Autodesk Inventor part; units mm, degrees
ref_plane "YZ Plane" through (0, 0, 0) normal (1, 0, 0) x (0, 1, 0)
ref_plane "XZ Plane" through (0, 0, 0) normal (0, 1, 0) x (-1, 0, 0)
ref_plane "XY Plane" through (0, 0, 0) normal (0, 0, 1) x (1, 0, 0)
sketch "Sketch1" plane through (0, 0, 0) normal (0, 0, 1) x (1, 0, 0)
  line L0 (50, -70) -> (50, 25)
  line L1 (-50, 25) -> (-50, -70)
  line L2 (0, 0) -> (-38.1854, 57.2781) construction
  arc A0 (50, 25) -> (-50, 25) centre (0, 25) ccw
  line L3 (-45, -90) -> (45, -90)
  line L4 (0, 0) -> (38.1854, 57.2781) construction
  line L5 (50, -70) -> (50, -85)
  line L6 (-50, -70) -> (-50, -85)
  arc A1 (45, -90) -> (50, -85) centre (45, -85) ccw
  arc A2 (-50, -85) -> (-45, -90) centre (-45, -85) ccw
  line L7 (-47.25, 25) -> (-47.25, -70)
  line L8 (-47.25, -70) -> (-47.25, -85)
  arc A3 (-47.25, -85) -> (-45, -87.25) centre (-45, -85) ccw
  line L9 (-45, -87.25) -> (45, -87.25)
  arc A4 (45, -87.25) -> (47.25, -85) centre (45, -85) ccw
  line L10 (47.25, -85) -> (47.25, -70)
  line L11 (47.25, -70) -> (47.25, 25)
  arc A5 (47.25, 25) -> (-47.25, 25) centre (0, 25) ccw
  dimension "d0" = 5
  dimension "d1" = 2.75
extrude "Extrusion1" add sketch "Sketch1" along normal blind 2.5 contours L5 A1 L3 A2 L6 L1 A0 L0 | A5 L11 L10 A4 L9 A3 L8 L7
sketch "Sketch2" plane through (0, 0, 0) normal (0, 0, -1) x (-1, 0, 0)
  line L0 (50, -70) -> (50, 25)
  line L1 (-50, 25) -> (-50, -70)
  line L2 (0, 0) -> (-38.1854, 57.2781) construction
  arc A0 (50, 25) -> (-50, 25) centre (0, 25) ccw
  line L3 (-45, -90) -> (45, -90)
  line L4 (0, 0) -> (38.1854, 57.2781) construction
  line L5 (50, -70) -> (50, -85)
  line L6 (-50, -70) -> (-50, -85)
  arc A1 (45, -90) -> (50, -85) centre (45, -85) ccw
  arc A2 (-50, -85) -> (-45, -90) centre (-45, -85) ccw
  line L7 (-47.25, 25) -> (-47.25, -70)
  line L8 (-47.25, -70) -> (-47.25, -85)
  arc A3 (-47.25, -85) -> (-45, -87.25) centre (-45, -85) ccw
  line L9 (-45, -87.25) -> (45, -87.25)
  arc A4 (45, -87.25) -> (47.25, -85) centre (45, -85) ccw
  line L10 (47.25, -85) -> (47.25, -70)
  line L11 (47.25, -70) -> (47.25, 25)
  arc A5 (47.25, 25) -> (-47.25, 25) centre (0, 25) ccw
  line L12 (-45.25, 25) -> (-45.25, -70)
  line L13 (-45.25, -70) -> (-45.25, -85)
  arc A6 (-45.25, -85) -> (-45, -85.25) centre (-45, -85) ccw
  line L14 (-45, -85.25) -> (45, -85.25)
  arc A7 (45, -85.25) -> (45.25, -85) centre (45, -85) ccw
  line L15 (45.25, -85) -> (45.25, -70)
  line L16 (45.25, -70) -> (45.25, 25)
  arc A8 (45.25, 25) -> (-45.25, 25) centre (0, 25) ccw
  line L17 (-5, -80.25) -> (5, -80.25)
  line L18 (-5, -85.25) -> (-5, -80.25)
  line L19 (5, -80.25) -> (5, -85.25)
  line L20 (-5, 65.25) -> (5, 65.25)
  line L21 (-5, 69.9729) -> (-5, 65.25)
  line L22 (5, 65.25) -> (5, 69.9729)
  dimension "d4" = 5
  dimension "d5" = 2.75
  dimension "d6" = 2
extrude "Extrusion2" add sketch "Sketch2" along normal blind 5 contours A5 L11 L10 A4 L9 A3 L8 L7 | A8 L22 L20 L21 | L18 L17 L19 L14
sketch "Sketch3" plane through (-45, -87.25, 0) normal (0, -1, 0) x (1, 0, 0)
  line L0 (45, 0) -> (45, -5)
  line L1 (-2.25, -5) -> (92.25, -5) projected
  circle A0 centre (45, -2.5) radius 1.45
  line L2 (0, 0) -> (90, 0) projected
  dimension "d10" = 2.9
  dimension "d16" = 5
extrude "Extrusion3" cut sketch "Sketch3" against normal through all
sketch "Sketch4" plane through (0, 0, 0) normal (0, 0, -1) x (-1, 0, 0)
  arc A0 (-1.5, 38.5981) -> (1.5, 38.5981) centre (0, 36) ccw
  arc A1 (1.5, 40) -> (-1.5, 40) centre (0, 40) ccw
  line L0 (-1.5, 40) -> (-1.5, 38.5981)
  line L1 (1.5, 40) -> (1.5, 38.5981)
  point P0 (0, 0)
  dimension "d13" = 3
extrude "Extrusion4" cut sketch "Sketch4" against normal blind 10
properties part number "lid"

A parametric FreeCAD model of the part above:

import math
import FreeCAD as App
import Part
import Sketcher
from FreeCAD import Vector

doc = App.newDocument("Part")
body = doc.addObject("PartDesign::Body", "Body")

# Sketch on XY plane
sketch1 = body.newObject("Sketcher::SketchObject", "Sketch")
sketch1.AttachmentSupport = (doc.getObject("XY_Plane"), [""])
sketch1.MapMode = "FlatFace"
sketch1.addGeometry([
    Part.LineSegment(Vector(50, -85, 0), Vector(50, 25, 0)),  # 0
    Part.ArcOfCircle(Part.Circle(Vector(0, 25, 0), Vector(0, 0, 1), 50), math.radians(0), math.radians(180)),  # 1
    Part.LineSegment(Vector(-50, 25, 0), Vector(-50, -85, 0)),  # 2
    Part.ArcOfCircle(Part.Circle(Vector(-45, -85, 0), Vector(0, 0, 1), 5), math.radians(180), math.radians(270)),  # 3
    Part.LineSegment(Vector(-45, -90, 0), Vector(45, -90, 0)),  # 4
    Part.ArcOfCircle(Part.Circle(Vector(45, -85, 0), Vector(0, 0, 1), 5), math.radians(-90), math.radians(0)),  # 5
], False)
sketch1.addConstraint([
    Sketcher.Constraint("Tangent", 0, 2, 1, 1),
    Sketcher.Constraint("Tangent", 1, 2, 2, 1),
    Sketcher.Constraint("Tangent", 2, 2, 3, 1),
    Sketcher.Constraint("Tangent", 3, 2, 4, 1),
    Sketcher.Constraint("Tangent", 4, 2, 5, 1),
    Sketcher.Constraint("Tangent", 5, 2, 0, 1),
    Sketcher.Constraint("Vertical", 0),
    Sketcher.Constraint("Vertical", 2),
    Sketcher.Constraint("Horizontal", 4),
    Sketcher.Constraint("Equal", 3, 5),
    Sketcher.Constraint("PointOnObject", 1, 3, -2),
    Sketcher.Constraint("Radius", 3, 5.0),
    Sketcher.Constraint("Radius", 1, 50.0),
    Sketcher.Constraint("DistanceY", 0, 1, 0, 2, 110.0),
    Sketcher.Constraint("DistanceY", -1, 1, 1, 3, 25.0),
])
pad1 = body.newObject("PartDesign::Pad", "Pad")
pad1.Profile = sketch1
pad1.Length = 2.5

# Sketch on XY plane
sketch2 = body.newObject("Sketcher::SketchObject", "Sketch001")
sketch2.AttachmentSupport = (doc.getObject("XY_Plane"), [""])
sketch2.MapMode = "FlatFace"
sketch2.addGeometry([
    Part.ArcOfCircle(Part.Circle(Vector(0, 25, 0), Vector(0, 0, 1), 47.25), math.radians(0), math.radians(180)),  # 0
    Part.LineSegment(Vector(47.25, 25, 0), Vector(47.25, -85, 0)),  # 1
    Part.ArcOfCircle(Part.Circle(Vector(45, -85, 0), Vector(0, 0, 1), 2.25), math.radians(-90), math.radians(0)),  # 2
    Part.LineSegment(Vector(45, -87.25, 0), Vector(-45, -87.25, 0)),  # 3
    Part.ArcOfCircle(Part.Circle(Vector(-45, -85, 0), Vector(0, 0, 1), 2.25), math.radians(180), math.radians(270)),  # 4
    Part.LineSegment(Vector(-47.25, -85, 0), Vector(-47.25, 25, 0)),  # 5
    Part.ArcOfCircle(Part.Circle(Vector(0, 25, 0), Vector(0, 0, 1), 45.25), math.radians(0), math.radians(83.656019)),  # 6
    Part.LineSegment(Vector(5, 69.9729, 0), Vector(5, 65.25, 0)),  # 7
    Part.LineSegment(Vector(5, 65.25, 0), Vector(-5, 65.25, 0)),  # 8
    Part.LineSegment(Vector(-5, 65.25, 0), Vector(-5, 69.9729, 0)),  # 9
    Part.ArcOfCircle(Part.Circle(Vector(0, 25, 0), Vector(0, 0, 1), 45.25), math.radians(96.343981), math.radians(180)),  # 10
    Part.LineSegment(Vector(-45.25, 25, 0), Vector(-45.25, -85, 0)),  # 11
    Part.ArcOfCircle(Part.Circle(Vector(-45, -85, 0), Vector(0, 0, 1), 0.25), math.radians(180), math.radians(270)),  # 12
    Part.LineSegment(Vector(-45, -85.25, 0), Vector(-5, -85.25, 0)),  # 13
    Part.LineSegment(Vector(-5, -85.25, 0), Vector(-5, -80.25, 0)),  # 14
    Part.LineSegment(Vector(-5, -80.25, 0), Vector(5, -80.25, 0)),  # 15
    Part.LineSegment(Vector(5, -80.25, 0), Vector(5, -85.25, 0)),  # 16
    Part.LineSegment(Vector(5, -85.25, 0), Vector(45, -85.25, 0)),  # 17
    Part.ArcOfCircle(Part.Circle(Vector(45, -85, 0), Vector(0, 0, 1), 0.25), math.radians(-90), math.radians(0)),  # 18
    Part.LineSegment(Vector(45.25, -85, 0), Vector(45.25, 25, 0)),  # 19
], False)
sketch2.addConstraint([
    Sketcher.Constraint("Tangent", 0, 1, 1, 1),
    Sketcher.Constraint("Tangent", 1, 2, 2, 2),
    Sketcher.Constraint("Tangent", 2, 1, 3, 1),
    Sketcher.Constraint("Tangent", 3, 2, 4, 2),
    Sketcher.Constraint("Tangent", 4, 1, 5, 1),
    Sketcher.Constraint("Tangent", 5, 2, 0, 2),
    Sketcher.Constraint("Coincident", 6, 2, 7, 1),
    Sketcher.Constraint("Coincident", 7, 2, 8, 1),
    Sketcher.Constraint("Coincident", 8, 2, 9, 1),
    Sketcher.Constraint("Coincident", 9, 2, 10, 1),
    Sketcher.Constraint("Tangent", 10, 2, 11, 1),
    Sketcher.Constraint("Tangent", 11, 2, 12, 1),
    Sketcher.Constraint("Tangent", 12, 2, 13, 1),
    Sketcher.Constraint("Coincident", 13, 2, 14, 1),
    Sketcher.Constraint("Coincident", 14, 2, 15, 1),
    Sketcher.Constraint("Coincident", 15, 2, 16, 1),
    Sketcher.Constraint("Coincident", 16, 2, 17, 1),
    Sketcher.Constraint("Tangent", 17, 2, 18, 1),
    Sketcher.Constraint("Tangent", 18, 2, 19, 1),
    Sketcher.Constraint("Tangent", 19, 2, 6, 1),
    Sketcher.Constraint("Vertical", 1),
    Sketcher.Constraint("Horizontal", 3),
    Sketcher.Constraint("Vertical", 5),
    Sketcher.Constraint("Vertical", 7),
    Sketcher.Constraint("Horizontal", 8),
    Sketcher.Constraint("Vertical", 9),
    Sketcher.Constraint("Vertical", 11),
    Sketcher.Constraint("Horizontal", 13),
    Sketcher.Constraint("Vertical", 14),
    Sketcher.Constraint("Horizontal", 15),
    Sketcher.Constraint("Vertical", 16),
    Sketcher.Constraint("Horizontal", 17),
    Sketcher.Constraint("Vertical", 19),
    Sketcher.Constraint("Coincident", 6, 3, 0, 3),
    Sketcher.Constraint("Coincident", 10, 3, 0, 3),
    Sketcher.Constraint("Coincident", 12, 3, 4, 3),
    Sketcher.Constraint("Coincident", 18, 3, 2, 3),
    Sketcher.Constraint("Equal", 2, 4),
    Sketcher.Constraint("Equal", 6, 10),
    Sketcher.Constraint("Symmetric", 6, 2, 9, 2, -2),
    Sketcher.Constraint("Vertical", 9, 2, 13, 2),
    Sketcher.Constraint("Vertical", 7, 2, 15, 2),
    Sketcher.Constraint("DistanceY", 14, 1, 14, 2, 5.0),
    Sketcher.Constraint("DistanceX", -1, 1, 6, 2, 5.0),
    Sketcher.Constraint("DistanceX", 5, 2, 10, 2, 2.0),
    Sketcher.Constraint("DistanceX", 3, 2, 3, 1, 90.0),
    Sketcher.Constraint("DistanceY", 1, 2, 1, 1, 110.0),
    Sketcher.Constraint("Radius", 0, 47.25),
    Sketcher.Constraint("DistanceY", -1, 1, 0, 3, 25.0),
    Sketcher.Constraint("DistanceY", 7, 2, 7, 1, 4.723),
])
pad2 = body.newObject("PartDesign::Pad", "Pad001")
pad2.Profile = sketch2
pad2.Length = 5
pad2.Reversed = True

# Sketch on XZ plane
sketch3 = body.newObject("Sketcher::SketchObject", "Sketch002")
sketch3.AttachmentSupport = (doc.getObject("XZ_Plane"), [""])
sketch3.MapMode = "FlatFace"
sketch3.AttachmentOffset = App.Placement(Vector(0, 0, 87.25), App.Rotation())
sketch3.addGeometry(Part.Circle(Vector(0, -2.5, 0), Vector(0, 0, 1), 1.45), False)
sketch3.addConstraint([
    Sketcher.Constraint("PointOnObject", 0, 3, -2),
    Sketcher.Constraint("Diameter", 0, 2.9),
    Sketcher.Constraint("DistanceY", 0, 3, -1, 1, 2.5),
])
pocket1 = body.newObject("PartDesign::Pocket", "Pocket")
pocket1.Profile = sketch3
pocket1.Type = "ThroughAll"

# Sketch on XY plane
sketch4 = body.newObject("Sketcher::SketchObject", "Sketch003")
sketch4.AttachmentSupport = (doc.getObject("XY_Plane"), [""])
sketch4.MapMode = "FlatFace"
sketch4.addGeometry([
    Part.LineSegment(Vector(1.5, 40, 0), Vector(1.5, 38.5981, 0)),
    Part.ArcOfCircle(Part.Circle(Vector(0, 36, 0), Vector(0, 0, 1), 3.000021), math.radians(119.999773), math.radians(420.000227)),
    Part.LineSegment(Vector(-1.5, 38.5981, 0), Vector(-1.5, 40, 0)),
    Part.ArcOfCircle(Part.Circle(Vector(0, 40, 0), Vector(0, 0, 1), 1.5), math.radians(0), math.radians(180)),
], False)
sketch4.addConstraint([
    Sketcher.Constraint("Coincident", 0, 2, 1, 2),
    Sketcher.Constraint("Coincident", 1, 1, 2, 1),
    Sketcher.Constraint("Tangent", 2, 2, 3, 2),
    Sketcher.Constraint("Tangent", 3, 1, 0, 1),
    Sketcher.Constraint("Vertical", 0),
    Sketcher.Constraint("Vertical", 2),
    Sketcher.Constraint("Symmetric", 0, 2, 1, 1, -2),
    Sketcher.Constraint("Radius", 1, 3.0),
    Sketcher.Constraint("Radius", 3, 1.5),
    Sketcher.Constraint("DistanceY", -1, 1, 1, 3, 36.0),
    Sketcher.Constraint("DistanceY", -1, 1, 3, 3, 40.0),
])
pocket2 = body.newObject("PartDesign::Pocket", "Pocket001")
pocket2.Profile = sketch4
pocket2.Length = 10
pocket2.Reversed = True

doc.recompute()
